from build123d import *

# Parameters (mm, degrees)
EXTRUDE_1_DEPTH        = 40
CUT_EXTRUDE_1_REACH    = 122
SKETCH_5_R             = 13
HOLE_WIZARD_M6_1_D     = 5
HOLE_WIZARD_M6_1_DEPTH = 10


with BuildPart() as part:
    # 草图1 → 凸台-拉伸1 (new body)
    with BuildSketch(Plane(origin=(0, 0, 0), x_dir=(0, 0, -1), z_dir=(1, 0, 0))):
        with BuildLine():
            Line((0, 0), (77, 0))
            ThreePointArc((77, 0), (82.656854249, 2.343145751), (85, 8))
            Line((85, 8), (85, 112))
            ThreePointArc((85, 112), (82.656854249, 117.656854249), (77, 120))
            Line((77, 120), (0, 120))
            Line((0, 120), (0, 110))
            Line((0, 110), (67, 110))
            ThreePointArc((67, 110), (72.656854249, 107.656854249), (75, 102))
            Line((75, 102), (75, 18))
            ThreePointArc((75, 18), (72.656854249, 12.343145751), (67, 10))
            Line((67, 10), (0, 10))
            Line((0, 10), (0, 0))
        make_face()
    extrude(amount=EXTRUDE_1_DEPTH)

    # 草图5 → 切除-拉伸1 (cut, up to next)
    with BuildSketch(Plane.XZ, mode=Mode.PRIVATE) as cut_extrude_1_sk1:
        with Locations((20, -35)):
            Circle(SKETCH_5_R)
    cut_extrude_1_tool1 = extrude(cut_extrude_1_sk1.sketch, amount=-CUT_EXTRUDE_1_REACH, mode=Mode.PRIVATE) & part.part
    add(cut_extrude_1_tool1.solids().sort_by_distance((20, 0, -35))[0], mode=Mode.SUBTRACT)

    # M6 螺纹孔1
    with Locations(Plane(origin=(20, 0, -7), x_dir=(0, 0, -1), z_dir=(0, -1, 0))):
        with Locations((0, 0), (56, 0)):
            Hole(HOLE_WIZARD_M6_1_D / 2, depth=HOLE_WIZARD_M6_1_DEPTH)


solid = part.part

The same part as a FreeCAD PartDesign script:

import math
import FreeCAD as App
import Part
import Sketcher
from FreeCAD import Vector
Q = App.Units.Quantity

doc = App.newDocument("Part")
body = doc.addObject("PartDesign::Body", "Body")

sketch1 = body.newObject("Sketcher::SketchObject", "Sketch")
sketch1.AttachmentSupport = (doc.getObject("YZ_Plane"), [""])
sketch1.MapMode = "FlatFace"
sketch1.addGeometry([
    Part.LineSegment(Vector(0, 0, 0), Vector(0, -77, 0)),
    Part.ArcOfCircle(Part.Circle(Vector(8, -77, 0), Vector(0, 0, 1), 8), math.radians(-180), math.radians(-90)),
    Part.LineSegment(Vector(8, -85, 0), Vector(112, -85, 0)),
    Part.ArcOfCircle(Part.Circle(Vector(112, -77, 0), Vector(0, 0, 1), 8), math.radians(-90), math.radians(0)),
    Part.LineSegment(Vector(120, -77, 0), Vector(120, 0, 0)),
    Part.LineSegment(Vector(120, 0, 0), Vector(110, 0, 0)),
    Part.LineSegment(Vector(110, 0, 0), Vector(110, -67, 0)),
    Part.ArcOfCircle(Part.Circle(Vector(102, -67, 0), Vector(0, 0, 1), 8), math.radians(-90), math.radians(0)),
    Part.LineSegment(Vector(102, -75, 0), Vector(18, -75, 0)),
    Part.ArcOfCircle(Part.Circle(Vector(18, -67, 0), Vector(0, 0, 1), 8), math.radians(-180), math.radians(-90)),
    Part.LineSegment(Vector(10, -67, 0), Vector(10, 0, 0)),
    Part.LineSegment(Vector(10, 0, 0), Vector(0, 0, 0)),
], False)
sketch1.addConstraint([
    Sketcher.Constraint("Tangent", 0, 2, 1, 1),
    Sketcher.Constraint("Tangent", 1, 2, 2, 1),
    Sketcher.Constraint("Tangent", 2, 2, 3, 1),
    Sketcher.Constraint("Tangent", 3, 2, 4, 1),
    Sketcher.Constraint("Coincident", 4, 2, 5, 1),
    Sketcher.Constraint("Coincident", 5, 2, 6, 1),
    Sketcher.Constraint("Tangent", 6, 2, 7, 2),
    Sketcher.Constraint("Tangent", 7, 1, 8, 1),
    Sketcher.Constraint("Tangent", 8, 2, 9, 2),
    Sketcher.Constraint("Tangent", 9, 1, 10, 1),
    Sketcher.Constraint("Coincident", 10, 2, 11, 1),
    Sketcher.Constraint("Coincident", 11, 2, 0, 1),
    Sketcher.Constraint("Vertical", 0),
    Sketcher.Constraint("Horizontal", 2),
    Sketcher.Constraint("Vertical", 4),
    Sketcher.Constraint("Horizontal", 5),
    Sketcher.Constraint("Vertical", 6),
    Sketcher.Constraint("Horizontal", 8),
    Sketcher.Constraint("Vertical", 10),
    Sketcher.Constraint("Horizontal", 11),
    Sketcher.Constraint("Coincident", 11, 2, -1, 1),
    Sketcher.Constraint("Equal", 1, 3),
    Sketcher.Constraint("Equal", 3, 7),
    Sketcher.Constraint("Equal", 7, 9),
    Sketcher.Constraint("PointOnObject", 4, 2, -1),
    Sketcher.Constraint("Equal", 5, 11),
    Sketcher.Constraint("Radius", 1, Q("8 mm")),
    Sketcher.Constraint("DistanceX", 2, 1, 2, 2, Q("104 mm")),
    Sketcher.Constraint("DistanceX", 5, 2, 5, 1, Q("10 mm")),
    Sketcher.Constraint("DistanceY", 0, 2, 0, 1, Q("77 mm")),
    Sketcher.Constraint("DistanceY", 6, 2, 6, 1, Q("67 mm")),
])
pad1 = body.newObject("PartDesign::Pad", "Pad")
pad1.Profile = sketch1
pad1.Length = 40

sketch2 = body.newObject("Sketcher::SketchObject", "Sketch001")
sketch2.AttachmentSupport = (doc.getObject("XZ_Plane"), [""])
sketch2.MapMode = "FlatFace"
sketch2.addGeometry(Part.Circle(Vector(20, -35, 0), Vector(0, 0, 1), 13), False)
sketch2.addConstraint([
    Sketcher.Constraint("Diameter", 0, Q("26 mm")),
    Sketcher.Constraint("DistanceX", -1, 1, 0, 3, Q("20 mm")),
    Sketcher.Constraint("DistanceY", 0, 3, -1, 1, Q("35 mm")),
])
pocket1 = body.newObject("PartDesign::Pocket", "Pocket")
pocket1.Profile = sketch2
pocket1.Type = "UpToFirst"

sketch3 = body.newObject("Sketcher::SketchObject", "Sketch002")
sketch3.AttachmentSupport = (doc.getObject("XZ_Plane"), [""])
sketch3.MapMode = "FlatFace"
sketch3.addGeometry([
    Part.Circle(Vector(20, -7, 0), Vector(0, 0, 1), 2.5),
    Part.Circle(Vector(20, -63, 0), Vector(0, 0, 1), 2.5),
], False)
sketch3.addConstraint([
    Sketcher.Constraint("Equal", 0, 1),
    Sketcher.Constraint("Vertical", 0, 3, 1, 3),
    Sketcher.Constraint("Diameter", 0, Q("5 mm")),
    Sketcher.Constraint("DistanceX", -1, 1, 0, 3, Q("20 mm")),
    Sketcher.Constraint("DistanceY", 0, 3, -1, 1, Q("7 mm")),
    Sketcher.Constraint("DistanceY", 1, 3, -1, 1, Q("63 mm")),
])
doc.recompute()
hole = body.newObject("PartDesign::Hole", "Hole")
hole.Profile = sketch3
hole.ThreadType = "None"
hole.Diameter = 5
hole.DepthType = "Dimension"
hole.Depth = 10
hole.DrillPoint = "Flat"

doc.recompute()
